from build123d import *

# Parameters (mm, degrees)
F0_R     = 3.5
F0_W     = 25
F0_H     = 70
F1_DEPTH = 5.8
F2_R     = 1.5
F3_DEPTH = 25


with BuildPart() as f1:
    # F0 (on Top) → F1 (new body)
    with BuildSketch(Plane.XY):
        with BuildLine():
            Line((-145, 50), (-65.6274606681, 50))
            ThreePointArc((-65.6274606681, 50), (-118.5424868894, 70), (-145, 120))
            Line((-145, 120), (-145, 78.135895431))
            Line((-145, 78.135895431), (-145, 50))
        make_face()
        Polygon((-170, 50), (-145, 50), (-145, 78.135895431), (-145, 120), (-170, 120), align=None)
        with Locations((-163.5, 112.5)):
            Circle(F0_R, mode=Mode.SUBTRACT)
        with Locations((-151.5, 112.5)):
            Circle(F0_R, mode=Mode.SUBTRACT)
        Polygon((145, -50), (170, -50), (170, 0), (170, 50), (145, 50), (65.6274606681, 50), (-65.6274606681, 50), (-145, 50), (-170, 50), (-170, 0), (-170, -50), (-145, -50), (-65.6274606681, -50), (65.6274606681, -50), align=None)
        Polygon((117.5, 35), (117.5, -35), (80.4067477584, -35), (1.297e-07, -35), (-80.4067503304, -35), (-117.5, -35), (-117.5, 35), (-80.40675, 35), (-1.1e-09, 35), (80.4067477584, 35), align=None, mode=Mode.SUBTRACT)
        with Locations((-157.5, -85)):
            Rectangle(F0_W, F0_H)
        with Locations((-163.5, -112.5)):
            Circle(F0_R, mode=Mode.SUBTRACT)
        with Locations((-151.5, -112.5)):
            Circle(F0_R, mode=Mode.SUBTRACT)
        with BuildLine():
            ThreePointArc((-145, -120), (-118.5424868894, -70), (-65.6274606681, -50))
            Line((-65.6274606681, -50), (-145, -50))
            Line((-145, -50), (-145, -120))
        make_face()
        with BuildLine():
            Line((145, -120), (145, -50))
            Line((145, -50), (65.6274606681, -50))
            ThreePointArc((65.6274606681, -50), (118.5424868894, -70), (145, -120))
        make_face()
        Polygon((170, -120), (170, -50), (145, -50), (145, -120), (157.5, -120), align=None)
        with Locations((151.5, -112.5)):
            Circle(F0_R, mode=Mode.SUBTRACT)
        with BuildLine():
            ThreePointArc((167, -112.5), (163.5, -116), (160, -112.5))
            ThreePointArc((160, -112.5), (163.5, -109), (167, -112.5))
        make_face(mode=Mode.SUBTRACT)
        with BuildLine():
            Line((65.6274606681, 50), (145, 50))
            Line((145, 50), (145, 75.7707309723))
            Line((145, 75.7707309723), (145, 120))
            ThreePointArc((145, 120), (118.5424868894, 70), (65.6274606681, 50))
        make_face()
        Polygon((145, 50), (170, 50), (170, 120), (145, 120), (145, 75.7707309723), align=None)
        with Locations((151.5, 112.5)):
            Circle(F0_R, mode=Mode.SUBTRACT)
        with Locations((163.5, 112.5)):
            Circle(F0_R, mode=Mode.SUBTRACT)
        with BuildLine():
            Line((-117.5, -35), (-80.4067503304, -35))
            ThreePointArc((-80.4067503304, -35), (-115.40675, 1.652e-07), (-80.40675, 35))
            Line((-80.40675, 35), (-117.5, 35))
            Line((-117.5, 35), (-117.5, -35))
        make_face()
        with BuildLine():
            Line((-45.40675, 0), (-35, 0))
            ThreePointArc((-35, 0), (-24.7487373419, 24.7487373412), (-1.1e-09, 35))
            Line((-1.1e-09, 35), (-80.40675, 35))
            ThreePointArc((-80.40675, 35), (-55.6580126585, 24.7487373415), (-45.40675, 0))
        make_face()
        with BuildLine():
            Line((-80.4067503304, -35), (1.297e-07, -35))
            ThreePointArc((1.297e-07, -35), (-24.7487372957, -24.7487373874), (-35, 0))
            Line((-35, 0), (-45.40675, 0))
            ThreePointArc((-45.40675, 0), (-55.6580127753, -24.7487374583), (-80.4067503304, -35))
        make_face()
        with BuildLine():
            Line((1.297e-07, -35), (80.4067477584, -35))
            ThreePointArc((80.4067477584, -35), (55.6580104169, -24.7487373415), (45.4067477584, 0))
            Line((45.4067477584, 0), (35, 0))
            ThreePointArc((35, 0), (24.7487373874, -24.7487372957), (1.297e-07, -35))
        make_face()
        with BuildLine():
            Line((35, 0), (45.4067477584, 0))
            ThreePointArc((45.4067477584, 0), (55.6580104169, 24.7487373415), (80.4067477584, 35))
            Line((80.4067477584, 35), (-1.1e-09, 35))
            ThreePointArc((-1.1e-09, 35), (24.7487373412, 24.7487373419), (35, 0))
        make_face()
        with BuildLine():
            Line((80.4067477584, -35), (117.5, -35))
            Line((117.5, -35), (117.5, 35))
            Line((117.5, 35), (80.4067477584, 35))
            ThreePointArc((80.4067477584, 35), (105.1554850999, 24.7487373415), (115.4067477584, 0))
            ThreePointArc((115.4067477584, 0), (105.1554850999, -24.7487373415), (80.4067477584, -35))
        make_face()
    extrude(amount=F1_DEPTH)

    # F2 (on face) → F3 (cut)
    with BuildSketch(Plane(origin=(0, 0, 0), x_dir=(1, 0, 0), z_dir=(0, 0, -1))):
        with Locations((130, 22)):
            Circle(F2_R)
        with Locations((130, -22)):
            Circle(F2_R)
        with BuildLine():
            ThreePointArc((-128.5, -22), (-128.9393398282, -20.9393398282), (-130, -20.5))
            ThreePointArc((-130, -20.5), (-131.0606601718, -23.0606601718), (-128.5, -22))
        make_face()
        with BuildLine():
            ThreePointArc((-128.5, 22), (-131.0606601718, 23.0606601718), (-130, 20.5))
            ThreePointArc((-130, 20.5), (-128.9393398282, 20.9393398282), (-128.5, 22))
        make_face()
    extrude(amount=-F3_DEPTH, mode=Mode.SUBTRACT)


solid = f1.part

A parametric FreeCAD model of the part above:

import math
import FreeCAD as App
import Part
import Sketcher

V = App.Vector
Q = App.Units.Quantity

doc = App.newDocument("Part")
body = doc.addObject("PartDesign::Body", "Body")

# Sketch on XY plane
sketch1 = body.newObject("Sketcher::SketchObject", "Sketch")
sketch1.AttachmentSupport = (doc.getObject("XY_Plane"), [""])
sketch1.MapMode = "FlatFace"
sketch1.addGeometry(Part.ArcOfCircle(Part.Circle(V(-65.6, 130, 0), V(0, 0, 1), 80), math.radians(-173), math.radians(-90)), False)
sketch1.addGeometry(Part.LineSegment(V(-145, 120, 0), V(-170, 120, 0)), False)
sketch1.addGeometry(Part.LineSegment(V(-170, 120, 0), V(-170, -120, 0)), False)
sketch1.addGeometry(Part.LineSegment(V(-170, -120, 0), V(-145, -120, 0)), False)
sketch1.addGeometry(Part.ArcOfCircle(Part.Circle(V(-65.6, -130, 0), V(0, 0, 1), 80), math.radians(90), math.radians(173)), False)
sketch1.addGeometry(Part.LineSegment(V(-65.6, -50, 0), V(65.6, -50, 0)), False)
sketch1.addGeometry(Part.ArcOfCircle(Part.Circle(V(65.6, -130, 0), V(0, 0, 1), 80), math.radians(7), math.radians(90)), False)
sketch1.addGeometry(Part.LineSegment(V(145, -120, 0), V(170, -120, 0)), False)
sketch1.addGeometry(Part.LineSegment(V(170, -120, 0), V(170, 120, 0)), False)
sketch1.addGeometry(Part.LineSegment(V(170, 120, 0), V(145, 120, 0)), False)
sketch1.addGeometry(Part.ArcOfCircle(Part.Circle(V(65.6, 130, 0), V(0, 0, 1), 80), math.radians(-90), math.radians(-7)), False)
sketch1.addGeometry(Part.LineSegment(V(65.6, 50, 0), V(-65.6, 50, 0)), False)
sketch1.addGeometry(Part.Circle(V(-163.5, -112.5, 0), V(0, 0, 1), 3.5), False)
sketch1.addGeometry(Part.Circle(V(-151.5, -112.5, 0), V(0, 0, 1), 3.5), False)
sketch1.addGeometry(Part.Circle(V(151.5, -112.5, 0), V(0, 0, 1), 3.5), False)
sketch1.addGeometry(Part.Circle(V(163.5, -112.5, 0), V(0, 0, 1), 3.5), False)
sketch1.addGeometry(Part.Circle(V(-163.5, 112.5, 0), V(0, 0, 1), 3.5), False)
sketch1.addGeometry(Part.Circle(V(-151.5, 112.5, 0), V(0, 0, 1), 3.5), False)
sketch1.addGeometry(Part.ArcOfCircle(Part.Circle(V(80.4, 0, 0), V(0, 0, 1), 35), math.radians(180), math.radians(270)), False)
sketch1.addGeometry(Part.ArcOfCircle(Part.Circle(V(80.4, 0, 0), V(0, 0, 1), 35), math.radians(90), math.radians(180)), False)
sketch1.addGeometry(Part.ArcOfCircle(Part.Circle(V(80.4, 0, 0), V(0, 0, 1), 35), math.radians(0), math.radians(90)), False)
sketch1.addGeometry(Part.ArcOfCircle(Part.Circle(V(80.4, 0, 0), V(0, 0, 1), 35), math.radians(-90), math.radians(0)), False)
sketch1.addGeometry(Part.ArcOfCircle(Part.Circle(V(0, 0, 0), V(0, 0, 1), 35), math.radians(-90), math.radians(0)), False)
sketch1.addGeometry(Part.ArcOfCircle(Part.Circle(V(0, 0, 0), V(0, 0, 1), 35), math.radians(180), math.radians(270)), False)
sketch1.addGeometry(Part.ArcOfCircle(Part.Circle(V(0, 0, 0), V(0, 0, 1), 35), math.radians(90), math.radians(180)), False)
sketch1.addGeometry(Part.ArcOfCircle(Part.Circle(V(0, 0, 0), V(0, 0, 1), 35), math.radians(0), math.radians(90)), False)
sketch1.addGeometry(Part.ArcOfCircle(Part.Circle(V(-80.4, 0, 0), V(0, 0, 1), 35), math.radians(90), math.radians(270)), False)
sketch1.addGeometry(Part.ArcOfCircle(Part.Circle(V(-80.4, 0, 0), V(0, 0, 1), 35), math.radians(0), math.radians(90)), False)
sketch1.addGeometry(Part.ArcOfCircle(Part.Circle(V(-80.4, 0, 0), V(0, 0, 1), 35), math.radians(-90), math.radians(0)), False)
sketch1.addGeometry(Part.Circle(V(151.5, 112.5, 0), V(0, 0, 1), 3.5), False)
sketch1.addGeometry(Part.Circle(V(163.5, 112.5, 0), V(0, 0, 1), 3.5), False)
sketch1.addConstraint(Sketcher.Constraint("Coincident", 0, 1, 1, 1))
sketch1.addConstraint(Sketcher.Constraint("Coincident", 1, 2, 2, 1))
sketch1.addConstraint(Sketcher.Constraint("Coincident", 2, 2, 3, 1))
sketch1.addConstraint(Sketcher.Constraint("Coincident", 3, 2, 4, 2))
sketch1.addConstraint(Sketcher.Constraint("Tangent", 4, 1, 5, 1))
sketch1.addConstraint(Sketcher.Constraint("Tangent", 5, 2, 6, 2))
sketch1.addConstraint(Sketcher.Constraint("Coincident", 6, 1, 7, 1))
sketch1.addConstraint(Sketcher.Constraint("Coincident", 7, 2, 8, 1))
sketch1.addConstraint(Sketcher.Constraint("Coincident", 8, 2, 9, 1))
sketch1.addConstraint(Sketcher.Constraint("Coincident", 9, 2, 10, 2))
sketch1.addConstraint(Sketcher.Constraint("Tangent", 10, 1, 11, 1))
sketch1.addConstraint(Sketcher.Constraint("Tangent", 11, 2, 0, 2))
sketch1.addConstraint(Sketcher.Constraint("Tangent", 18, 1, 19, 2))
sketch1.addConstraint(Sketcher.Constraint("Tangent", 19, 1, 20, 2))
sketch1.addConstraint(Sketcher.Constraint("Tangent", 20, 1, 21, 2))
sketch1.addConstraint(Sketcher.Constraint("Tangent", 21, 1, 18, 2))
sketch1.addConstraint(Sketcher.Constraint("Tangent", 22, 1, 23, 2))
sketch1.addConstraint(Sketcher.Constraint("Tangent", 23, 1, 24, 2))
sketch1.addConstraint(Sketcher.Constraint("Tangent", 24, 1, 25, 2))
sketch1.addConstraint(Sketcher.Constraint("Tangent", 25, 1, 22, 2))
sketch1.addConstraint(Sketcher.Constraint("Tangent", 26, 1, 27, 2))
sketch1.addConstraint(Sketcher.Constraint("Tangent", 27, 1, 28, 2))
sketch1.addConstraint(Sketcher.Constraint("Tangent", 28, 1, 26, 2))
sketch1.addConstraint(Sketcher.Constraint("Horizontal", 1))
sketch1.addConstraint(Sketcher.Constraint("Vertical", 2))
sketch1.addConstraint(Sketcher.Constraint("Horizontal", 3))
sketch1.addConstraint(Sketcher.Constraint("Horizontal", 5))
sketch1.addConstraint(Sketcher.Constraint("Horizontal", 7))
sketch1.addConstraint(Sketcher.Constraint("Vertical", 8))
sketch1.addConstraint(Sketcher.Constraint("Horizontal", 9))
sketch1.addConstraint(Sketcher.Constraint("Horizontal", 11))
sketch1.addConstraint(Sketcher.Constraint("Coincident", 22, 3, -1, 1))
sketch1.addConstraint(Sketcher.Constraint("Equal", 0, 4))
sketch1.addConstraint(Sketcher.Constraint("Equal", 4, 6))
sketch1.addConstraint(Sketcher.Constraint("Equal", 6, 10))
sketch1.addConstraint(Sketcher.Constraint("Equal", 12, 13))
sketch1.addConstraint(Sketcher.Constraint("Equal", 13, 14))
sketch1.addConstraint(Sketcher.Constraint("Equal", 14, 15))
sketch1.addConstraint(Sketcher.Constraint("Equal", 15, 16))
sketch1.addConstraint(Sketcher.Constraint("Equal", 16, 17))
sketch1.addConstraint(Sketcher.Constraint("Equal", 18, 19))
sketch1.addConstraint(Sketcher.Constraint("Equal", 21, 22))
sketch1.addConstraint(Sketcher.Constraint("Equal", 22, 23))
sketch1.addConstraint(Sketcher.Constraint("Equal", 25, 26))
sketch1.addConstraint(Sketcher.Constraint("Equal", 17, 29))
sketch1.addConstraint(Sketcher.Constraint("Equal", 29, 30))
sketch1.addConstraint(Sketcher.Constraint("Symmetric", 0, 3, 6, 3, -1, 1))
sketch1.addConstraint(Sketcher.Constraint("Symmetric", 15, 3, 16, 3, -1, 1))
sketch1.addConstraint(Sketcher.Constraint("Symmetric", 14, 3, 17, 3, -1, 1))
sketch1.addConstraint(Sketcher.Constraint("Symmetric", 18, 3, 26, 3, -1, 1))
sketch1.addConstraint(Sketcher.Constraint("Symmetric", 13, 3, 29, 3, -1, 1))
sketch1.addConstraint(Sketcher.Constraint("Symmetric", 12, 3, 30, 3, -1, 1))
sketch1.addConstraint(Sketcher.Constraint("Symmetric", 1, 2, 7, 2, -1, 1))
sketch1.addConstraint(Sketcher.Constraint("Symmetric", 3, 2, 9, 2, -1, 1))
sketch1.addConstraint(Sketcher.Constraint("Symmetric", 13, 3, 14, 3, -2))
sketch1.addConstraint(Sketcher.Constraint("Symmetric", 12, 3, 15, 3, -2))
sketch1.addConstraint(Sketcher.Constraint("Symmetric", 3, 2, 6, 1, -2))
sketch1.addConstraint(Sketcher.Constraint("Symmetric", 19, 1, 26, 1, -2))
sketch1.addConstraint(Sketcher.Constraint("PointOnObject", 18, 1, -1))
sketch1.addConstraint(Sketcher.Constraint("PointOnObject", 20, 1, -1))
sketch1.addConstraint(Sketcher.Constraint("PointOnObject", 22, 1, -2))
sketch1.addConstraint(Sketcher.Constraint("PointOnObject", 23, 1, -1))
sketch1.addConstraint(Sketcher.Constraint("PointOnObject", 24, 1, -2))
sketch1.addConstraint(Sketcher.Constraint("PointOnObject", 25, 1, -1))
sketch1.addConstraint(Sketcher.Constraint("PointOnObject", 27, 1, -1))
sketch1.addConstraint(Sketcher.Constraint("Horizontal", 12, 3, 13, 3))
sketch1.addConstraint(Sketcher.Constraint("Vertical", 21, 3, 19, 1))
sketch1.addConstraint(Sketcher.Constraint("Vertical", 19, 1, 21, 1))
sketch1.addConstraint(Sketcher.Constraint("Vertical", 26, 1, 28, 1))
sketch1.addConstraint(Sketcher.Constraint("Diameter", 12, Q("7 mm")))
sketch1.addConstraint(Sketcher.Constraint("Radius", 0, Q("80 mm")))
sketch1.addConstraint(Sketcher.Constraint("Radius", 18, Q("35 mm")))
sketch1.addConstraint(Sketcher.Constraint("DistanceX", 1, 2, 1, 1, Q("25 mm")))
sketch1.addConstraint(Sketcher.Constraint("DistanceY", 2, 2, 2, 1, Q("240 mm")))
sketch1.addConstraint(Sketcher.Constraint("DistanceY", -1, 1, 0, 3, Q("130 mm")))
sketch1.addConstraint(Sketcher.Constraint("DistanceX", 0, 1, -1, 1, Q("145 mm")))
sketch1.addConstraint(Sketcher.Constraint("DistanceX", 12, 3, 13, 3, Q("12 mm")))
sketch1.addConstraint(Sketcher.Constraint("DistanceX", 13, 3, 14, 3, Q("303 mm")))
sketch1.addConstraint(Sketcher.Constraint("DistanceY", 12, 3, 16, 3, Q("225 mm")))
sketch1.addConstraint(Sketcher.Constraint("DistanceX", 26, 3, -1, 1, Q("80.40675 mm")))
pad1 = body.newObject("PartDesign::Pad", "Pad")
pad1.Profile = sketch1
pad1.Length = 5.8

# Sketch on XY plane
sketch2 = body.newObject("Sketcher::SketchObject", "Sketch001")
sketch2.AttachmentSupport = (doc.getObject("XY_Plane"), [""])
sketch2.MapMode = "FlatFace"
sketch2.addGeometry(Part.Circle(V(130, -22, 0), V(0, 0, 1), 1.5), False)
sketch2.addGeometry(Part.Circle(V(130, 22, 0), V(0, 0, 1), 1.5), False)
sketch2.addGeometry(Part.ArcOfCircle(Part.Circle(V(-130, 22, 0), V(0, 0, 1), 1.5), math.radians(-90), math.radians(0)), False)
sketch2.addGeometry(Part.ArcOfCircle(Part.Circle(V(-130, 22, 0), V(0, 0, 1), 1.5), math.radians(0), math.radians(270)), False)
sketch2.addGeometry(Part.ArcOfCircle(Part.Circle(V(-130, -22, 0), V(0, 0, 1), 1.5), math.radians(90), math.radians(360)), False)
sketch2.addGeometry(Part.ArcOfCircle(Part.Circle(V(-130, -22, 0), V(0, 0, 1), 1.5), math.radians(0), math.radians(90)), False)
sketch2.addConstraint(Sketcher.Constraint("Tangent", 2, 1, 3, 2))
sketch2.addConstraint(Sketcher.Constraint("Coincident", 3, 1, 2, 2))
sketch2.addConstraint(Sketcher.Constraint("Tangent", 4, 1, 5, 2))
sketch2.addConstraint(Sketcher.Constraint("Coincident", 5, 1, 4, 2))
sketch2.addConstraint(Sketcher.Constraint("Equal", 0, 1))
sketch2.addConstraint(Sketcher.Constraint("Equal", 1, 2))
sketch2.addConstraint(Sketcher.Constraint("Equal", 3, 4))
sketch2.addConstraint(Sketcher.Constraint("Symmetric", 0, 3, 2, 3, -1, 1))
sketch2.addConstraint(Sketcher.Constraint("Symmetric", 1, 3, 4, 3, -1, 1))
sketch2.addConstraint(Sketcher.Constraint("Symmetric", 1, 3, 2, 3, -2))
sketch2.addConstraint(Sketcher.Constraint("Horizontal", 2, 3, 3, 1))
sketch2.addConstraint(Sketcher.Constraint("Horizontal", 4, 3, 5, 1))
sketch2.addConstraint(Sketcher.Constraint("Vertical", 5, 3, 2, 1))
sketch2.addConstraint(Sketcher.Constraint("Vertical", 2, 1, 4, 1))
sketch2.addConstraint(Sketcher.Constraint("Diameter", 0, Q("3 mm")))
sketch2.addConstraint(Sketcher.Constraint("DistanceX", -1, 1, 0, 3, Q("130 mm")))
sketch2.addConstraint(Sketcher.Constraint("DistanceY", 0, 3, -1, 1, Q("22 mm")))
pocket1 = body.newObject("PartDesign::Pocket", "Pocket")
pocket1.Profile = sketch2
pocket1.Length = 25
pocket1.Reversed = True

doc.recompute()
